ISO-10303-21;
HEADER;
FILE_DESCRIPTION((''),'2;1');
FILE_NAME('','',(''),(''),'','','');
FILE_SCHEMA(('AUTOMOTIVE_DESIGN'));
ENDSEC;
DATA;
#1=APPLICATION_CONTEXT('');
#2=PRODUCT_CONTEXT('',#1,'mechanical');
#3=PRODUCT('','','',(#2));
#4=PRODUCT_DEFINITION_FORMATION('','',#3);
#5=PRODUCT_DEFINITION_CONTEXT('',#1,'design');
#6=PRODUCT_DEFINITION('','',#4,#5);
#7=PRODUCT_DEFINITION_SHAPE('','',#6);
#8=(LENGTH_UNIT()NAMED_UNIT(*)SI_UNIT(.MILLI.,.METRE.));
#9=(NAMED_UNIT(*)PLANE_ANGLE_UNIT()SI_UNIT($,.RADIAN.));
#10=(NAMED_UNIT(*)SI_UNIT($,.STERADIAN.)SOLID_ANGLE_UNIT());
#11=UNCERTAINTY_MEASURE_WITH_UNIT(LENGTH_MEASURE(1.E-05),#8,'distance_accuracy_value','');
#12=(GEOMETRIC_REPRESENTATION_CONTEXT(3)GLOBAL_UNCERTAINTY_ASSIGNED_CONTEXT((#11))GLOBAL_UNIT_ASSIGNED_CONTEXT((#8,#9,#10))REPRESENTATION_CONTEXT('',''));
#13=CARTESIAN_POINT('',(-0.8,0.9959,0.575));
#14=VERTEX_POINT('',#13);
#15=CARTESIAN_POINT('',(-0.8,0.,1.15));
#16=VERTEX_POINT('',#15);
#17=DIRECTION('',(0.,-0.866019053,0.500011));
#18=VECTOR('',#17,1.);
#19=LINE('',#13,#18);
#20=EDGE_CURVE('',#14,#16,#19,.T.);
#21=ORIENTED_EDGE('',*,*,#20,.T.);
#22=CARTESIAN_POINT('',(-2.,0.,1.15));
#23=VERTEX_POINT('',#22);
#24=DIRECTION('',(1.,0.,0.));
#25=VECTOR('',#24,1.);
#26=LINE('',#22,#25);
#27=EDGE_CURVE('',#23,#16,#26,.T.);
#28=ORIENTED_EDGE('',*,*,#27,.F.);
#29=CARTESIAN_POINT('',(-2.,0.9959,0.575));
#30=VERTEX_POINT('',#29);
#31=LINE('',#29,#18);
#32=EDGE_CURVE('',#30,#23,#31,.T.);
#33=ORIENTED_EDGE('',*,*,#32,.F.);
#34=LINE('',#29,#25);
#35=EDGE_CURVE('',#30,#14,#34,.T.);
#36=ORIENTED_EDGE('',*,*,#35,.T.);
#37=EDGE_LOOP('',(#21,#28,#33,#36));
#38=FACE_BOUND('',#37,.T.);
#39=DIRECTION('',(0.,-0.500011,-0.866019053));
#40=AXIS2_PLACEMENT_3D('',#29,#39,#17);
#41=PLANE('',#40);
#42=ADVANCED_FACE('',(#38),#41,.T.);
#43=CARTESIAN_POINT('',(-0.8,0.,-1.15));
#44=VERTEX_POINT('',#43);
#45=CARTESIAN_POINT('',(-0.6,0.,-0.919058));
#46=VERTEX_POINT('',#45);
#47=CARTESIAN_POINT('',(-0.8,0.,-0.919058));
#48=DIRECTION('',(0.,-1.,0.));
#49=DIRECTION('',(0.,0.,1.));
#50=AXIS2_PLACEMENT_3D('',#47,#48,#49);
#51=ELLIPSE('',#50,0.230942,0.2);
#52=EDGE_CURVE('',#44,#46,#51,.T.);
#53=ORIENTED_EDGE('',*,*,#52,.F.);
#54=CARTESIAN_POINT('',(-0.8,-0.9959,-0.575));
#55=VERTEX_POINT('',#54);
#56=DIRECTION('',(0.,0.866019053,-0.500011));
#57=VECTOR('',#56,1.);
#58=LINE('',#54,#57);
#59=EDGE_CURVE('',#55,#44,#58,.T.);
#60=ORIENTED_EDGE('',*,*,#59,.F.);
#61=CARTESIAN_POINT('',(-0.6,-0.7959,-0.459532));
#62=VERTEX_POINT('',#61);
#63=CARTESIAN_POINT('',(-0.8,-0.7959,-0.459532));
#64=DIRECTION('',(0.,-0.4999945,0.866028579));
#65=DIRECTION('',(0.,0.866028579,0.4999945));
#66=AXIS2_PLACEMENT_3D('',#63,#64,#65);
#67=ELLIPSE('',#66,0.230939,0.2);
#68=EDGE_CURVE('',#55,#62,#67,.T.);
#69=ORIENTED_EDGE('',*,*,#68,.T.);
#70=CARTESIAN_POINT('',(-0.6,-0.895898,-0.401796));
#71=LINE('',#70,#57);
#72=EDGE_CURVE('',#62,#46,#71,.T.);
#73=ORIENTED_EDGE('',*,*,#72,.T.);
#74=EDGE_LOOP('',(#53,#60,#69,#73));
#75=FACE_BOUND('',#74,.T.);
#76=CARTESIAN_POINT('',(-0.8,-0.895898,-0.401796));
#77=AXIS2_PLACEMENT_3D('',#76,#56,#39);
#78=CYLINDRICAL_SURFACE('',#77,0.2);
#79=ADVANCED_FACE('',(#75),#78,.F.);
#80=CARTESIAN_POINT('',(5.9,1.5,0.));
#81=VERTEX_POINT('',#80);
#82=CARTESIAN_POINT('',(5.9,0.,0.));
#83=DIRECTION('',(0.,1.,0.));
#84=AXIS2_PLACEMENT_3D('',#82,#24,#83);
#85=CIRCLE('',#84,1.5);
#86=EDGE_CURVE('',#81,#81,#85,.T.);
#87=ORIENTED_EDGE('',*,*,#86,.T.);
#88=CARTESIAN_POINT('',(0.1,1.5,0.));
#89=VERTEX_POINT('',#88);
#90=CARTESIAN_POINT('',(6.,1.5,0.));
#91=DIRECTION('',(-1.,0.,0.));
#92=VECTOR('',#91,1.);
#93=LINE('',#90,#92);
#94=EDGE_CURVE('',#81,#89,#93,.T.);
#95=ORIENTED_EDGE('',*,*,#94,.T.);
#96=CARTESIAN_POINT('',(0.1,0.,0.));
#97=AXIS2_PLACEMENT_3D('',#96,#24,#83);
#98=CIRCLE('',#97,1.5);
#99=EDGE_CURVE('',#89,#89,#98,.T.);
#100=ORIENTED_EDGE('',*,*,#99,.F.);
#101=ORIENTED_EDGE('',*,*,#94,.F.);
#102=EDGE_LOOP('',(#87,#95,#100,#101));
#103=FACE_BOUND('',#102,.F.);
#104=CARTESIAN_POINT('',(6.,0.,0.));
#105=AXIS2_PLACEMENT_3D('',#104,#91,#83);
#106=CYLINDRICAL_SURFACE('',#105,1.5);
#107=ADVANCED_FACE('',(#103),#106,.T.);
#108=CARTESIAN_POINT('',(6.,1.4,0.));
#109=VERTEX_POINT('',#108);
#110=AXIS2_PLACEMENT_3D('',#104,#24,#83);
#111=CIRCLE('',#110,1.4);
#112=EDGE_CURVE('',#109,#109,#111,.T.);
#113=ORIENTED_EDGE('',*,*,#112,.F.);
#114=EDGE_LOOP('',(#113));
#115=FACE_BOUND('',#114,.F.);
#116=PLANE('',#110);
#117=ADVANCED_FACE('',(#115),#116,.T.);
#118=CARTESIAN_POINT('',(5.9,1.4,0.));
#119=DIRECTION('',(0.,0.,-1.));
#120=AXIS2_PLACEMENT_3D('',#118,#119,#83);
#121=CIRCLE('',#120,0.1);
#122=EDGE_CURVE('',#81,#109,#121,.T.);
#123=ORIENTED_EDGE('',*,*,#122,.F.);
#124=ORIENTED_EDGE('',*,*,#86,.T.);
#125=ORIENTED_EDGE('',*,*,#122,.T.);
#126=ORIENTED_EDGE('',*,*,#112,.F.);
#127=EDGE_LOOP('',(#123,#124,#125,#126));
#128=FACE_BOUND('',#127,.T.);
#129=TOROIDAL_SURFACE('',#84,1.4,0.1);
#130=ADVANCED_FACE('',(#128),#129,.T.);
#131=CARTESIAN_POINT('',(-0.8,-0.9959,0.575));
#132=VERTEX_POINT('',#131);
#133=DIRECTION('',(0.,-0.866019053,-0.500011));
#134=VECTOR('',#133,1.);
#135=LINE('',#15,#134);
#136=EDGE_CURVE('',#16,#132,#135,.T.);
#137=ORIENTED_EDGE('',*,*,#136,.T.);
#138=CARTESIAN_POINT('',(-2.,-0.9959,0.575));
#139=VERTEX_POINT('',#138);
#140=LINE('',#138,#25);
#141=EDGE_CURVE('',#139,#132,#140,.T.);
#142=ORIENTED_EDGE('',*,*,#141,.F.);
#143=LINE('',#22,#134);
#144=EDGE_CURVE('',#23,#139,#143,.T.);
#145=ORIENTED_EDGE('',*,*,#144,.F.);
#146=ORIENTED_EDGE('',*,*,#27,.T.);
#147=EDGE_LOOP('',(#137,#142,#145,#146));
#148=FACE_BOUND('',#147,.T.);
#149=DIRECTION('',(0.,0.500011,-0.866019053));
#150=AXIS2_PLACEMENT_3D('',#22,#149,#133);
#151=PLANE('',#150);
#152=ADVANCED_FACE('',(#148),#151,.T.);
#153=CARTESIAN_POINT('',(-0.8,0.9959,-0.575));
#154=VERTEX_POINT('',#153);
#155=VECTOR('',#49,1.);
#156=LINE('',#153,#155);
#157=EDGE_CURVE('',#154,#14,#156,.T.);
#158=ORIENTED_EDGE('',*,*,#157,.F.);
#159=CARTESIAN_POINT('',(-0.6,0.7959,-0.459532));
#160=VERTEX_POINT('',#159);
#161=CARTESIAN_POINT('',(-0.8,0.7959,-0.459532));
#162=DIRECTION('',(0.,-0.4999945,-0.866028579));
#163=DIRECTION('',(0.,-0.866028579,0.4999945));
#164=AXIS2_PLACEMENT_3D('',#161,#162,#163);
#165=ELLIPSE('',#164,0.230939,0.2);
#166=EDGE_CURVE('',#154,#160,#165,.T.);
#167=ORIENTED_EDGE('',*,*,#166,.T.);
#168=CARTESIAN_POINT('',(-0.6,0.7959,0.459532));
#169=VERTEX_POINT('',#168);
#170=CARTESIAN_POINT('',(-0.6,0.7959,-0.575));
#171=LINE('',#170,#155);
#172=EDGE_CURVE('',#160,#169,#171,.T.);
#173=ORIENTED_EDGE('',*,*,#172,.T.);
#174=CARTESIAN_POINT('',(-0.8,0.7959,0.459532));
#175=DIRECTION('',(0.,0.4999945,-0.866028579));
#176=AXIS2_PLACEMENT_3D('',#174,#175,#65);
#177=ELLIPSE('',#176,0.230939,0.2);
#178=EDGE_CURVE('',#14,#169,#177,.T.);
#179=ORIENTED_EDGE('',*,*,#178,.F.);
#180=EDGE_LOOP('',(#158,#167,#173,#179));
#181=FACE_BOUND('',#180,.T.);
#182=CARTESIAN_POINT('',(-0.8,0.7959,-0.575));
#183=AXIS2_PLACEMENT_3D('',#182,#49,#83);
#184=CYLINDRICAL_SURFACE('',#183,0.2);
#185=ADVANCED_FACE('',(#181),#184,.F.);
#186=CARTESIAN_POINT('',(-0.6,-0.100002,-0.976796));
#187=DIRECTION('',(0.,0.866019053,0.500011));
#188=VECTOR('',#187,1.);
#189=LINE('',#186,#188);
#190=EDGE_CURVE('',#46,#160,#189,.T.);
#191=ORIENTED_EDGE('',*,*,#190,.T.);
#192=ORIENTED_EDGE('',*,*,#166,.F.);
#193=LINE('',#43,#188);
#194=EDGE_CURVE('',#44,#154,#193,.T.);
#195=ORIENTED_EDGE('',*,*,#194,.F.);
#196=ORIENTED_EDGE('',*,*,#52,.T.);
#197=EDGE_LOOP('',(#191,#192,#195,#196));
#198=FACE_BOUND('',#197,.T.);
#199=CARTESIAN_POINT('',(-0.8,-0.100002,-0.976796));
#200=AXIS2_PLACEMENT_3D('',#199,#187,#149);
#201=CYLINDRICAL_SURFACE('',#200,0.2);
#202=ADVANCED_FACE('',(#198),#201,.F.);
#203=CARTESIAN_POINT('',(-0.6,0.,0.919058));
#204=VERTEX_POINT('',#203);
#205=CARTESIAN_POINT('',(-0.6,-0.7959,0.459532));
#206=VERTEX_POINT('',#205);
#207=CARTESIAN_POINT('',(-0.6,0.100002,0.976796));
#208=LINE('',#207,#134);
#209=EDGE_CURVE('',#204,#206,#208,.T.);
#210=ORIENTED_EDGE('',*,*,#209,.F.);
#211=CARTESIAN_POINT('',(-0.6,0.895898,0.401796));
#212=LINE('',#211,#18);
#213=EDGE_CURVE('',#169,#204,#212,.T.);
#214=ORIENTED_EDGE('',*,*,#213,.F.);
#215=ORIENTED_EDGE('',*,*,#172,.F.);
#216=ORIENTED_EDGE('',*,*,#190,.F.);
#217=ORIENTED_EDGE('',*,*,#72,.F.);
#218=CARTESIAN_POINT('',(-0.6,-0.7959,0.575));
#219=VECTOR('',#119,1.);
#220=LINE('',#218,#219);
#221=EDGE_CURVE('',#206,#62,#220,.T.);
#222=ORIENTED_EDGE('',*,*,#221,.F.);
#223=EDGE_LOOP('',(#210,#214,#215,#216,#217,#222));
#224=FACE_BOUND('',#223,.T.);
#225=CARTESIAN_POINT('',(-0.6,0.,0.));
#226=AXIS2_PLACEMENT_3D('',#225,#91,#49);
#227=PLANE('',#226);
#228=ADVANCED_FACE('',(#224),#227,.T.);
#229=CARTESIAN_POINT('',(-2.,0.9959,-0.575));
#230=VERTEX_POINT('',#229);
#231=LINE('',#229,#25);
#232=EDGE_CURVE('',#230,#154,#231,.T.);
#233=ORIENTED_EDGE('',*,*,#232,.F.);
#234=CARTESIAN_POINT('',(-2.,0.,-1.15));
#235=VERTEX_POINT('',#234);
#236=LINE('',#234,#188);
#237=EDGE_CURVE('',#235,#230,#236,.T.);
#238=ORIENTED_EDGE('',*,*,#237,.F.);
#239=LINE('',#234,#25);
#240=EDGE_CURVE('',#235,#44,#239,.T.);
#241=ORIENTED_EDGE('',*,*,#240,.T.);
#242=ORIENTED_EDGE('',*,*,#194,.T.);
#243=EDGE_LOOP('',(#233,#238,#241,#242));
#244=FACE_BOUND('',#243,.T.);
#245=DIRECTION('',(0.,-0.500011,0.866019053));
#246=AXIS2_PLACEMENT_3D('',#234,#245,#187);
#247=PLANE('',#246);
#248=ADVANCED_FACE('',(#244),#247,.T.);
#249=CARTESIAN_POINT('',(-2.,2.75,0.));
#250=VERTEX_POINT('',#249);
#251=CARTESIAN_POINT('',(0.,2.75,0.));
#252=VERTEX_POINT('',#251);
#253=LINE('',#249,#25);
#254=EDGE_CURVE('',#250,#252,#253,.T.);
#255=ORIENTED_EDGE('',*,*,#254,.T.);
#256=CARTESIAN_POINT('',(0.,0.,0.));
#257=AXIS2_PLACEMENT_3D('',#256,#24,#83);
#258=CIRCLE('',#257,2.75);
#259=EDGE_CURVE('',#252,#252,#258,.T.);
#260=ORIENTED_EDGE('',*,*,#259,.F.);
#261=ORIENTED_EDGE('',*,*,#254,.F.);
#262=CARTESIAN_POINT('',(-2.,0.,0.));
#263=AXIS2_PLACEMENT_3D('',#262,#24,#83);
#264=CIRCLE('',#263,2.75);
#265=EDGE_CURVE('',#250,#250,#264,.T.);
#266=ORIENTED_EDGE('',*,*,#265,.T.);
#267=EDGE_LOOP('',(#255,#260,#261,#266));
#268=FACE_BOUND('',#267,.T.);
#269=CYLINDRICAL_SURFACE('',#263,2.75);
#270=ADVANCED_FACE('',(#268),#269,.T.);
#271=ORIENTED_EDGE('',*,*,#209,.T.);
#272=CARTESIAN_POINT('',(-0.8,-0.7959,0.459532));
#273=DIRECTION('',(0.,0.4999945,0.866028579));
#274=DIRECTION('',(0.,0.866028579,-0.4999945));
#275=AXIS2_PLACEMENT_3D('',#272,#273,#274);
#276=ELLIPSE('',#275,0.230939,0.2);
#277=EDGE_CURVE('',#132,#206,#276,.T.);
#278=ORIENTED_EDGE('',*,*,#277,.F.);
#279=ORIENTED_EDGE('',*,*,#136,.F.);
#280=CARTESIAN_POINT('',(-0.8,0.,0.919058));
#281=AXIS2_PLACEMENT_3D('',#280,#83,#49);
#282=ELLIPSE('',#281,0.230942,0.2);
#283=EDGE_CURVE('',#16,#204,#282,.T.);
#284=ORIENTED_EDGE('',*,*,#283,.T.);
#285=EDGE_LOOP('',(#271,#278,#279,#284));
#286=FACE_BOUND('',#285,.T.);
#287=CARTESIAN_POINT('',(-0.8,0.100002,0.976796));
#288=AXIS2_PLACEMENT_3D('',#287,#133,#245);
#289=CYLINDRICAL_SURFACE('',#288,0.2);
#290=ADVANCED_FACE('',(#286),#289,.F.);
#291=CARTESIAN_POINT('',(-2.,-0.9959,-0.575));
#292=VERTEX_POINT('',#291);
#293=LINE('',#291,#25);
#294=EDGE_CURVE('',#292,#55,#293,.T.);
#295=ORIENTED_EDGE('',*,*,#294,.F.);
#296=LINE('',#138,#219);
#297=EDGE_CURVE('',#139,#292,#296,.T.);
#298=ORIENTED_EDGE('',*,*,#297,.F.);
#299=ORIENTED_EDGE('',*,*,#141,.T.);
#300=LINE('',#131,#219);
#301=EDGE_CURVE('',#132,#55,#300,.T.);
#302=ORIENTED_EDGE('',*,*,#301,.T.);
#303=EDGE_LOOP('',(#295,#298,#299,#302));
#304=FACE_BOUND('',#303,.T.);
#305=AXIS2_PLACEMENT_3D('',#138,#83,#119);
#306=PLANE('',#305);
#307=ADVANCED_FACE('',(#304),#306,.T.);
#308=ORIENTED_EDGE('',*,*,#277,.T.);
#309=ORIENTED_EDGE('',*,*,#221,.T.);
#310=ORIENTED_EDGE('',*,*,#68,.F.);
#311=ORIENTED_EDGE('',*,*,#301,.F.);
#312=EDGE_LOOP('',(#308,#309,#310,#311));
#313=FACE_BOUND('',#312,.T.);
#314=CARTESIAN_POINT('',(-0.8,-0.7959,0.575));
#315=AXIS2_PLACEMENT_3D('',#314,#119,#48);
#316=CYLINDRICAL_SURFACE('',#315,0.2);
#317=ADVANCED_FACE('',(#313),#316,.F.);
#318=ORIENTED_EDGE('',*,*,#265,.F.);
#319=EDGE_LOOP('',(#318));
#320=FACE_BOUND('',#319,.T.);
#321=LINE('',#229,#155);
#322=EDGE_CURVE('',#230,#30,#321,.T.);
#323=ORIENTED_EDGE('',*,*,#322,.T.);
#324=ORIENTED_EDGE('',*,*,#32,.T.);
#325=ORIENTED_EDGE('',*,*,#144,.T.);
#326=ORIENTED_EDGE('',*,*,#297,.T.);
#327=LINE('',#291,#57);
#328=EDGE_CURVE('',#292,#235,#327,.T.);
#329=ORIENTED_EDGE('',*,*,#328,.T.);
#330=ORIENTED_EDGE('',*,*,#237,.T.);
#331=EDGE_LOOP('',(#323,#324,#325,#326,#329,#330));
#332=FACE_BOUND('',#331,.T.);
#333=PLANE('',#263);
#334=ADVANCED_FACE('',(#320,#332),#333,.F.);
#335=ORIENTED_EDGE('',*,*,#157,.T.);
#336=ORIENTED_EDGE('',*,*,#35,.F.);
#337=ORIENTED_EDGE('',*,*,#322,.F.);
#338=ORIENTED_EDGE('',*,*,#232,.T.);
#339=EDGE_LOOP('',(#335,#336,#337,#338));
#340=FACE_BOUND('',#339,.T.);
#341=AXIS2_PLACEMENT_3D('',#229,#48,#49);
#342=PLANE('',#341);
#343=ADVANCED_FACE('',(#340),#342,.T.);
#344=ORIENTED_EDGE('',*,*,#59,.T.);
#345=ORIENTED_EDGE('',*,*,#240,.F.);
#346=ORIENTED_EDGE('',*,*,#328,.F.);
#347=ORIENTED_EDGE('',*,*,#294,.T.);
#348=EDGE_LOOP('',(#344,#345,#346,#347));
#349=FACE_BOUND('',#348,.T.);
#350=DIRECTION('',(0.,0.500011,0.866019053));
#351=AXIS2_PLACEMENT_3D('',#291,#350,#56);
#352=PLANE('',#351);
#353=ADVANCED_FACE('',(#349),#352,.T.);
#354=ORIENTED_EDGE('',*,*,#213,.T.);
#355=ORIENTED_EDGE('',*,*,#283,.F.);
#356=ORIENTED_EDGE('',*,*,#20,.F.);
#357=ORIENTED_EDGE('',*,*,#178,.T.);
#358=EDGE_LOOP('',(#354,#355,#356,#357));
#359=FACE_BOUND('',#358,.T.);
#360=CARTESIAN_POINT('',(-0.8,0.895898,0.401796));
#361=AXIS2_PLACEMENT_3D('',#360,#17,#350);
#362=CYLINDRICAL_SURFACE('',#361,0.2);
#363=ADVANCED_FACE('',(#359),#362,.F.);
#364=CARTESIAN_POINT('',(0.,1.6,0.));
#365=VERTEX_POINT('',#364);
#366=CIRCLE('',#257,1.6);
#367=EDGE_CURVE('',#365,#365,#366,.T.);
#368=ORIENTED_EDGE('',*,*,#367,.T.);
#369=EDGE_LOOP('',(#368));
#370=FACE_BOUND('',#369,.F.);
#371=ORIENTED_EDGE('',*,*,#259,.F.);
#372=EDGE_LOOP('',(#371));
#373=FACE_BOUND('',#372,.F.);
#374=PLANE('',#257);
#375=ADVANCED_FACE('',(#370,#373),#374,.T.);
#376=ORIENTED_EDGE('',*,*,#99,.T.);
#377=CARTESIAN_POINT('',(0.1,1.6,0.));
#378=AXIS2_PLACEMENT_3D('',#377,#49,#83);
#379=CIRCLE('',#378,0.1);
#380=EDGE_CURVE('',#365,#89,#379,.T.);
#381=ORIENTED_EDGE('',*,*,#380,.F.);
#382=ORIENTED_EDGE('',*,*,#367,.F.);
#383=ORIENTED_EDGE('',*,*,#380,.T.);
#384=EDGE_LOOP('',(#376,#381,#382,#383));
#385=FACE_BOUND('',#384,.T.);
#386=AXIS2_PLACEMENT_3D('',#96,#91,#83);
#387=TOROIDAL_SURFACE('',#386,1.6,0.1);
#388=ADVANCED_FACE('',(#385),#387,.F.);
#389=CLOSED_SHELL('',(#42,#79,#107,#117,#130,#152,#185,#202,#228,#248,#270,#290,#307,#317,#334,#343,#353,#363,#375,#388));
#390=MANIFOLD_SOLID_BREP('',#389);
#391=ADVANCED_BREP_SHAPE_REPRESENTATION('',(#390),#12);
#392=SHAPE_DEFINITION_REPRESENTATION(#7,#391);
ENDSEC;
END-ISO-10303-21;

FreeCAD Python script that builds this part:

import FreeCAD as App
import Part
import Sketcher

V = App.Vector


def edges_at(feature, points):
    """Names of the edges that pass closest to the given points."""
    edges = feature.Shape.Edges
    near = lambda p: min(range(len(edges)), key=lambda i: edges[i].distToShape(Part.Vertex(*p))[0])
    return sorted({f"Edge{near(p) + 1}" for p in points})


def add_polygon(sketch, points):
    """Adds a closed chain of lines whose ends are joined by coincident constraints."""
    first, n = sketch.GeometryCount, len(points)
    for a, b in zip(points, points[1:] + points[:1]):
        sketch.addGeometry(Part.LineSegment(App.Vector(*a, 0), App.Vector(*b, 0)), False)
    for i in range(n):
        sketch.addConstraint(Sketcher.Constraint("Coincident", first + i, 2, first + (i + 1) % n, 1))

doc = App.newDocument("Part")
params = doc.addObject("Spreadsheet::Sheet", "Params")
for row, (alias, value) in enumerate([
    ("sketch1_width", "6 mm"),
    ("sketch1_width2", "2 mm"),
    ("sketch1_height", "1.5 mm"),
    ("sketch1_height2", "2.75 mm"),
    ("revolution_angle", "360 deg"),
    ("sketch2_height", "1.15 mm"),
    ("sketch2_length", "1.15 mm"),
    ("pocket1_length", "1.4 mm"),
    ("fillet_radius", "0.2 mm"),
    ("fillet2_radius", "0.1 mm"),
    ("fillet3_radius", "0.1 mm"),
], start=1):
    params.set(f"A{row}", alias)
    params.set(f"B{row}", "=" + value)
    params.setAlias(f"B{row}", alias)

body = doc.addObject("PartDesign::Body", "Body")

sketch1 = doc.addObject("Sketcher::SketchObject", "Sketch")
body.addObject(sketch1)
sketch1.AttachmentSupport = (doc.XY_Plane, [""])
sketch1.MapMode = "FlatFace"
add_polygon(sketch1, [(6, 1.5), (0, 1.5), (0, 2.8), (-2, 2.8), (-2, 0), (6, 0)])
sketch1.addConstraint(Sketcher.Constraint("Horizontal", 0))
sketch1.addConstraint(Sketcher.Constraint("Vertical", 1))
sketch1.addConstraint(Sketcher.Constraint("Horizontal", 2))
sketch1.addConstraint(Sketcher.Constraint("Vertical", 3))
sketch1.addConstraint(Sketcher.Constraint("Horizontal", 4))
sketch1.addConstraint(Sketcher.Constraint("Vertical", 5))
sketch1.addConstraint(Sketcher.Constraint("PointOnObject", 0, 2, -2))
sketch1.addConstraint(Sketcher.Constraint("PointOnObject", 3, 2, -1))
sketch1.addConstraint(Sketcher.Constraint("DistanceX", 0, 2, 0, 1, 6.0))
sketch1.addConstraint(Sketcher.Constraint("DistanceX", 2, 2, 2, 1, 2.0))
sketch1.addConstraint(Sketcher.Constraint("DistanceY", 5, 1, 5, 2, 1.5))
sketch1.addConstraint(Sketcher.Constraint("DistanceY", 3, 2, 3, 1, 2.75))
sketch1.setExpression("Constraints[14]", "Params.sketch1_width")
sketch1.setExpression("Constraints[15]", "Params.sketch1_width2")
sketch1.setExpression("Constraints[16]", "Params.sketch1_height")
sketch1.setExpression("Constraints[17]", "Params.sketch1_height2")
revolution = doc.addObject("PartDesign::Revolution", "Revolution")
body.addObject(revolution)
revolution.Profile = sketch1
revolution.ReferenceAxis = (sketch1, ["H_Axis"])
revolution.setExpression("Angle", "Params.revolution_angle")

sketch2 = doc.addObject("Sketcher::SketchObject", "Sketch001")
body.addObject(sketch2)
sketch2.AttachmentSupport = (doc.YZ_Plane, [""])
sketch2.MapMode = "FlatFace"
sketch2.AttachmentOffset = App.Placement(V(0, 0, -2), App.Rotation())
add_polygon(sketch2, [(-1, 0.6), (0, 1.1), (1, 0.6), (1, -0.6), (0, -1.1), (-1, -0.6)])
sketch2.addConstraint(Sketcher.Constraint("Vertical", 2))
sketch2.addConstraint(Sketcher.Constraint("Vertical", 5))
sketch2.addConstraint(Sketcher.Constraint("Symmetric", 0, 2, 3, 2, -1, 1))
sketch2.addConstraint(Sketcher.Constraint("Symmetric", 1, 2, 4, 2, -1, 1))
sketch2.addConstraint(Sketcher.Constraint("PointOnObject", 0, 2, -2))
sketch2.addConstraint(Sketcher.Constraint("Parallel", 0, 3))
sketch2.addConstraint(Sketcher.Constraint("Horizontal", 2, 2, 4, 2))
sketch2.addConstraint(Sketcher.Constraint("DistanceY", 2, 2, 2, 1, 1.15))
sketch2.addConstraint(Sketcher.Constraint("Distance", 0, 1.15))
sketch2.addConstraint(Sketcher.Constraint("DistanceY", -1, 1, 0, 2, 1.15))
sketch2.setExpression("Constraints[13]", "Params.sketch2_height")
sketch2.setExpression("Constraints[14]", "Params.sketch2_length")
pocket1 = doc.addObject("PartDesign::Pocket", "Pocket")
body.addObject(pocket1)
pocket1.Profile = sketch2
pocket1.setExpression("Length", "Params.pocket1_length")
pocket1.Reversed = True
doc.recompute()

fillet = doc.addObject("PartDesign::Fillet", "Fillet")
body.addObject(fillet)
fillet.Base = (pocket1, edges_at(pocket1, [
    (-0.6, 0.996, 0),
    (-0.6, 0.498, 0.863),
    (-0.6, 0.498, -0.863),
    (-0.6, -0.498, -0.863),
    (-0.6, -0.996, 0),
    (-0.6, -0.498, 0.863),
]))
fillet.setExpression("Radius", "Params.fillet_radius")
doc.recompute()

fillet2 = doc.addObject("PartDesign::Fillet", "Fillet001")
body.addObject(fillet2)
fillet2.Base = (fillet, edges_at(fillet, [(0, -1.5, 0)]))
fillet2.setExpression("Radius", "Params.fillet2_radius")
doc.recompute()

fillet3 = doc.addObject("PartDesign::Fillet", "Fillet002")
body.addObject(fillet3)
fillet3.Base = (fillet2, edges_at(fillet2, [(6, -1.5, 0)]))
fillet3.setExpression("Radius", "Params.fillet3_radius")

doc.recompute()
